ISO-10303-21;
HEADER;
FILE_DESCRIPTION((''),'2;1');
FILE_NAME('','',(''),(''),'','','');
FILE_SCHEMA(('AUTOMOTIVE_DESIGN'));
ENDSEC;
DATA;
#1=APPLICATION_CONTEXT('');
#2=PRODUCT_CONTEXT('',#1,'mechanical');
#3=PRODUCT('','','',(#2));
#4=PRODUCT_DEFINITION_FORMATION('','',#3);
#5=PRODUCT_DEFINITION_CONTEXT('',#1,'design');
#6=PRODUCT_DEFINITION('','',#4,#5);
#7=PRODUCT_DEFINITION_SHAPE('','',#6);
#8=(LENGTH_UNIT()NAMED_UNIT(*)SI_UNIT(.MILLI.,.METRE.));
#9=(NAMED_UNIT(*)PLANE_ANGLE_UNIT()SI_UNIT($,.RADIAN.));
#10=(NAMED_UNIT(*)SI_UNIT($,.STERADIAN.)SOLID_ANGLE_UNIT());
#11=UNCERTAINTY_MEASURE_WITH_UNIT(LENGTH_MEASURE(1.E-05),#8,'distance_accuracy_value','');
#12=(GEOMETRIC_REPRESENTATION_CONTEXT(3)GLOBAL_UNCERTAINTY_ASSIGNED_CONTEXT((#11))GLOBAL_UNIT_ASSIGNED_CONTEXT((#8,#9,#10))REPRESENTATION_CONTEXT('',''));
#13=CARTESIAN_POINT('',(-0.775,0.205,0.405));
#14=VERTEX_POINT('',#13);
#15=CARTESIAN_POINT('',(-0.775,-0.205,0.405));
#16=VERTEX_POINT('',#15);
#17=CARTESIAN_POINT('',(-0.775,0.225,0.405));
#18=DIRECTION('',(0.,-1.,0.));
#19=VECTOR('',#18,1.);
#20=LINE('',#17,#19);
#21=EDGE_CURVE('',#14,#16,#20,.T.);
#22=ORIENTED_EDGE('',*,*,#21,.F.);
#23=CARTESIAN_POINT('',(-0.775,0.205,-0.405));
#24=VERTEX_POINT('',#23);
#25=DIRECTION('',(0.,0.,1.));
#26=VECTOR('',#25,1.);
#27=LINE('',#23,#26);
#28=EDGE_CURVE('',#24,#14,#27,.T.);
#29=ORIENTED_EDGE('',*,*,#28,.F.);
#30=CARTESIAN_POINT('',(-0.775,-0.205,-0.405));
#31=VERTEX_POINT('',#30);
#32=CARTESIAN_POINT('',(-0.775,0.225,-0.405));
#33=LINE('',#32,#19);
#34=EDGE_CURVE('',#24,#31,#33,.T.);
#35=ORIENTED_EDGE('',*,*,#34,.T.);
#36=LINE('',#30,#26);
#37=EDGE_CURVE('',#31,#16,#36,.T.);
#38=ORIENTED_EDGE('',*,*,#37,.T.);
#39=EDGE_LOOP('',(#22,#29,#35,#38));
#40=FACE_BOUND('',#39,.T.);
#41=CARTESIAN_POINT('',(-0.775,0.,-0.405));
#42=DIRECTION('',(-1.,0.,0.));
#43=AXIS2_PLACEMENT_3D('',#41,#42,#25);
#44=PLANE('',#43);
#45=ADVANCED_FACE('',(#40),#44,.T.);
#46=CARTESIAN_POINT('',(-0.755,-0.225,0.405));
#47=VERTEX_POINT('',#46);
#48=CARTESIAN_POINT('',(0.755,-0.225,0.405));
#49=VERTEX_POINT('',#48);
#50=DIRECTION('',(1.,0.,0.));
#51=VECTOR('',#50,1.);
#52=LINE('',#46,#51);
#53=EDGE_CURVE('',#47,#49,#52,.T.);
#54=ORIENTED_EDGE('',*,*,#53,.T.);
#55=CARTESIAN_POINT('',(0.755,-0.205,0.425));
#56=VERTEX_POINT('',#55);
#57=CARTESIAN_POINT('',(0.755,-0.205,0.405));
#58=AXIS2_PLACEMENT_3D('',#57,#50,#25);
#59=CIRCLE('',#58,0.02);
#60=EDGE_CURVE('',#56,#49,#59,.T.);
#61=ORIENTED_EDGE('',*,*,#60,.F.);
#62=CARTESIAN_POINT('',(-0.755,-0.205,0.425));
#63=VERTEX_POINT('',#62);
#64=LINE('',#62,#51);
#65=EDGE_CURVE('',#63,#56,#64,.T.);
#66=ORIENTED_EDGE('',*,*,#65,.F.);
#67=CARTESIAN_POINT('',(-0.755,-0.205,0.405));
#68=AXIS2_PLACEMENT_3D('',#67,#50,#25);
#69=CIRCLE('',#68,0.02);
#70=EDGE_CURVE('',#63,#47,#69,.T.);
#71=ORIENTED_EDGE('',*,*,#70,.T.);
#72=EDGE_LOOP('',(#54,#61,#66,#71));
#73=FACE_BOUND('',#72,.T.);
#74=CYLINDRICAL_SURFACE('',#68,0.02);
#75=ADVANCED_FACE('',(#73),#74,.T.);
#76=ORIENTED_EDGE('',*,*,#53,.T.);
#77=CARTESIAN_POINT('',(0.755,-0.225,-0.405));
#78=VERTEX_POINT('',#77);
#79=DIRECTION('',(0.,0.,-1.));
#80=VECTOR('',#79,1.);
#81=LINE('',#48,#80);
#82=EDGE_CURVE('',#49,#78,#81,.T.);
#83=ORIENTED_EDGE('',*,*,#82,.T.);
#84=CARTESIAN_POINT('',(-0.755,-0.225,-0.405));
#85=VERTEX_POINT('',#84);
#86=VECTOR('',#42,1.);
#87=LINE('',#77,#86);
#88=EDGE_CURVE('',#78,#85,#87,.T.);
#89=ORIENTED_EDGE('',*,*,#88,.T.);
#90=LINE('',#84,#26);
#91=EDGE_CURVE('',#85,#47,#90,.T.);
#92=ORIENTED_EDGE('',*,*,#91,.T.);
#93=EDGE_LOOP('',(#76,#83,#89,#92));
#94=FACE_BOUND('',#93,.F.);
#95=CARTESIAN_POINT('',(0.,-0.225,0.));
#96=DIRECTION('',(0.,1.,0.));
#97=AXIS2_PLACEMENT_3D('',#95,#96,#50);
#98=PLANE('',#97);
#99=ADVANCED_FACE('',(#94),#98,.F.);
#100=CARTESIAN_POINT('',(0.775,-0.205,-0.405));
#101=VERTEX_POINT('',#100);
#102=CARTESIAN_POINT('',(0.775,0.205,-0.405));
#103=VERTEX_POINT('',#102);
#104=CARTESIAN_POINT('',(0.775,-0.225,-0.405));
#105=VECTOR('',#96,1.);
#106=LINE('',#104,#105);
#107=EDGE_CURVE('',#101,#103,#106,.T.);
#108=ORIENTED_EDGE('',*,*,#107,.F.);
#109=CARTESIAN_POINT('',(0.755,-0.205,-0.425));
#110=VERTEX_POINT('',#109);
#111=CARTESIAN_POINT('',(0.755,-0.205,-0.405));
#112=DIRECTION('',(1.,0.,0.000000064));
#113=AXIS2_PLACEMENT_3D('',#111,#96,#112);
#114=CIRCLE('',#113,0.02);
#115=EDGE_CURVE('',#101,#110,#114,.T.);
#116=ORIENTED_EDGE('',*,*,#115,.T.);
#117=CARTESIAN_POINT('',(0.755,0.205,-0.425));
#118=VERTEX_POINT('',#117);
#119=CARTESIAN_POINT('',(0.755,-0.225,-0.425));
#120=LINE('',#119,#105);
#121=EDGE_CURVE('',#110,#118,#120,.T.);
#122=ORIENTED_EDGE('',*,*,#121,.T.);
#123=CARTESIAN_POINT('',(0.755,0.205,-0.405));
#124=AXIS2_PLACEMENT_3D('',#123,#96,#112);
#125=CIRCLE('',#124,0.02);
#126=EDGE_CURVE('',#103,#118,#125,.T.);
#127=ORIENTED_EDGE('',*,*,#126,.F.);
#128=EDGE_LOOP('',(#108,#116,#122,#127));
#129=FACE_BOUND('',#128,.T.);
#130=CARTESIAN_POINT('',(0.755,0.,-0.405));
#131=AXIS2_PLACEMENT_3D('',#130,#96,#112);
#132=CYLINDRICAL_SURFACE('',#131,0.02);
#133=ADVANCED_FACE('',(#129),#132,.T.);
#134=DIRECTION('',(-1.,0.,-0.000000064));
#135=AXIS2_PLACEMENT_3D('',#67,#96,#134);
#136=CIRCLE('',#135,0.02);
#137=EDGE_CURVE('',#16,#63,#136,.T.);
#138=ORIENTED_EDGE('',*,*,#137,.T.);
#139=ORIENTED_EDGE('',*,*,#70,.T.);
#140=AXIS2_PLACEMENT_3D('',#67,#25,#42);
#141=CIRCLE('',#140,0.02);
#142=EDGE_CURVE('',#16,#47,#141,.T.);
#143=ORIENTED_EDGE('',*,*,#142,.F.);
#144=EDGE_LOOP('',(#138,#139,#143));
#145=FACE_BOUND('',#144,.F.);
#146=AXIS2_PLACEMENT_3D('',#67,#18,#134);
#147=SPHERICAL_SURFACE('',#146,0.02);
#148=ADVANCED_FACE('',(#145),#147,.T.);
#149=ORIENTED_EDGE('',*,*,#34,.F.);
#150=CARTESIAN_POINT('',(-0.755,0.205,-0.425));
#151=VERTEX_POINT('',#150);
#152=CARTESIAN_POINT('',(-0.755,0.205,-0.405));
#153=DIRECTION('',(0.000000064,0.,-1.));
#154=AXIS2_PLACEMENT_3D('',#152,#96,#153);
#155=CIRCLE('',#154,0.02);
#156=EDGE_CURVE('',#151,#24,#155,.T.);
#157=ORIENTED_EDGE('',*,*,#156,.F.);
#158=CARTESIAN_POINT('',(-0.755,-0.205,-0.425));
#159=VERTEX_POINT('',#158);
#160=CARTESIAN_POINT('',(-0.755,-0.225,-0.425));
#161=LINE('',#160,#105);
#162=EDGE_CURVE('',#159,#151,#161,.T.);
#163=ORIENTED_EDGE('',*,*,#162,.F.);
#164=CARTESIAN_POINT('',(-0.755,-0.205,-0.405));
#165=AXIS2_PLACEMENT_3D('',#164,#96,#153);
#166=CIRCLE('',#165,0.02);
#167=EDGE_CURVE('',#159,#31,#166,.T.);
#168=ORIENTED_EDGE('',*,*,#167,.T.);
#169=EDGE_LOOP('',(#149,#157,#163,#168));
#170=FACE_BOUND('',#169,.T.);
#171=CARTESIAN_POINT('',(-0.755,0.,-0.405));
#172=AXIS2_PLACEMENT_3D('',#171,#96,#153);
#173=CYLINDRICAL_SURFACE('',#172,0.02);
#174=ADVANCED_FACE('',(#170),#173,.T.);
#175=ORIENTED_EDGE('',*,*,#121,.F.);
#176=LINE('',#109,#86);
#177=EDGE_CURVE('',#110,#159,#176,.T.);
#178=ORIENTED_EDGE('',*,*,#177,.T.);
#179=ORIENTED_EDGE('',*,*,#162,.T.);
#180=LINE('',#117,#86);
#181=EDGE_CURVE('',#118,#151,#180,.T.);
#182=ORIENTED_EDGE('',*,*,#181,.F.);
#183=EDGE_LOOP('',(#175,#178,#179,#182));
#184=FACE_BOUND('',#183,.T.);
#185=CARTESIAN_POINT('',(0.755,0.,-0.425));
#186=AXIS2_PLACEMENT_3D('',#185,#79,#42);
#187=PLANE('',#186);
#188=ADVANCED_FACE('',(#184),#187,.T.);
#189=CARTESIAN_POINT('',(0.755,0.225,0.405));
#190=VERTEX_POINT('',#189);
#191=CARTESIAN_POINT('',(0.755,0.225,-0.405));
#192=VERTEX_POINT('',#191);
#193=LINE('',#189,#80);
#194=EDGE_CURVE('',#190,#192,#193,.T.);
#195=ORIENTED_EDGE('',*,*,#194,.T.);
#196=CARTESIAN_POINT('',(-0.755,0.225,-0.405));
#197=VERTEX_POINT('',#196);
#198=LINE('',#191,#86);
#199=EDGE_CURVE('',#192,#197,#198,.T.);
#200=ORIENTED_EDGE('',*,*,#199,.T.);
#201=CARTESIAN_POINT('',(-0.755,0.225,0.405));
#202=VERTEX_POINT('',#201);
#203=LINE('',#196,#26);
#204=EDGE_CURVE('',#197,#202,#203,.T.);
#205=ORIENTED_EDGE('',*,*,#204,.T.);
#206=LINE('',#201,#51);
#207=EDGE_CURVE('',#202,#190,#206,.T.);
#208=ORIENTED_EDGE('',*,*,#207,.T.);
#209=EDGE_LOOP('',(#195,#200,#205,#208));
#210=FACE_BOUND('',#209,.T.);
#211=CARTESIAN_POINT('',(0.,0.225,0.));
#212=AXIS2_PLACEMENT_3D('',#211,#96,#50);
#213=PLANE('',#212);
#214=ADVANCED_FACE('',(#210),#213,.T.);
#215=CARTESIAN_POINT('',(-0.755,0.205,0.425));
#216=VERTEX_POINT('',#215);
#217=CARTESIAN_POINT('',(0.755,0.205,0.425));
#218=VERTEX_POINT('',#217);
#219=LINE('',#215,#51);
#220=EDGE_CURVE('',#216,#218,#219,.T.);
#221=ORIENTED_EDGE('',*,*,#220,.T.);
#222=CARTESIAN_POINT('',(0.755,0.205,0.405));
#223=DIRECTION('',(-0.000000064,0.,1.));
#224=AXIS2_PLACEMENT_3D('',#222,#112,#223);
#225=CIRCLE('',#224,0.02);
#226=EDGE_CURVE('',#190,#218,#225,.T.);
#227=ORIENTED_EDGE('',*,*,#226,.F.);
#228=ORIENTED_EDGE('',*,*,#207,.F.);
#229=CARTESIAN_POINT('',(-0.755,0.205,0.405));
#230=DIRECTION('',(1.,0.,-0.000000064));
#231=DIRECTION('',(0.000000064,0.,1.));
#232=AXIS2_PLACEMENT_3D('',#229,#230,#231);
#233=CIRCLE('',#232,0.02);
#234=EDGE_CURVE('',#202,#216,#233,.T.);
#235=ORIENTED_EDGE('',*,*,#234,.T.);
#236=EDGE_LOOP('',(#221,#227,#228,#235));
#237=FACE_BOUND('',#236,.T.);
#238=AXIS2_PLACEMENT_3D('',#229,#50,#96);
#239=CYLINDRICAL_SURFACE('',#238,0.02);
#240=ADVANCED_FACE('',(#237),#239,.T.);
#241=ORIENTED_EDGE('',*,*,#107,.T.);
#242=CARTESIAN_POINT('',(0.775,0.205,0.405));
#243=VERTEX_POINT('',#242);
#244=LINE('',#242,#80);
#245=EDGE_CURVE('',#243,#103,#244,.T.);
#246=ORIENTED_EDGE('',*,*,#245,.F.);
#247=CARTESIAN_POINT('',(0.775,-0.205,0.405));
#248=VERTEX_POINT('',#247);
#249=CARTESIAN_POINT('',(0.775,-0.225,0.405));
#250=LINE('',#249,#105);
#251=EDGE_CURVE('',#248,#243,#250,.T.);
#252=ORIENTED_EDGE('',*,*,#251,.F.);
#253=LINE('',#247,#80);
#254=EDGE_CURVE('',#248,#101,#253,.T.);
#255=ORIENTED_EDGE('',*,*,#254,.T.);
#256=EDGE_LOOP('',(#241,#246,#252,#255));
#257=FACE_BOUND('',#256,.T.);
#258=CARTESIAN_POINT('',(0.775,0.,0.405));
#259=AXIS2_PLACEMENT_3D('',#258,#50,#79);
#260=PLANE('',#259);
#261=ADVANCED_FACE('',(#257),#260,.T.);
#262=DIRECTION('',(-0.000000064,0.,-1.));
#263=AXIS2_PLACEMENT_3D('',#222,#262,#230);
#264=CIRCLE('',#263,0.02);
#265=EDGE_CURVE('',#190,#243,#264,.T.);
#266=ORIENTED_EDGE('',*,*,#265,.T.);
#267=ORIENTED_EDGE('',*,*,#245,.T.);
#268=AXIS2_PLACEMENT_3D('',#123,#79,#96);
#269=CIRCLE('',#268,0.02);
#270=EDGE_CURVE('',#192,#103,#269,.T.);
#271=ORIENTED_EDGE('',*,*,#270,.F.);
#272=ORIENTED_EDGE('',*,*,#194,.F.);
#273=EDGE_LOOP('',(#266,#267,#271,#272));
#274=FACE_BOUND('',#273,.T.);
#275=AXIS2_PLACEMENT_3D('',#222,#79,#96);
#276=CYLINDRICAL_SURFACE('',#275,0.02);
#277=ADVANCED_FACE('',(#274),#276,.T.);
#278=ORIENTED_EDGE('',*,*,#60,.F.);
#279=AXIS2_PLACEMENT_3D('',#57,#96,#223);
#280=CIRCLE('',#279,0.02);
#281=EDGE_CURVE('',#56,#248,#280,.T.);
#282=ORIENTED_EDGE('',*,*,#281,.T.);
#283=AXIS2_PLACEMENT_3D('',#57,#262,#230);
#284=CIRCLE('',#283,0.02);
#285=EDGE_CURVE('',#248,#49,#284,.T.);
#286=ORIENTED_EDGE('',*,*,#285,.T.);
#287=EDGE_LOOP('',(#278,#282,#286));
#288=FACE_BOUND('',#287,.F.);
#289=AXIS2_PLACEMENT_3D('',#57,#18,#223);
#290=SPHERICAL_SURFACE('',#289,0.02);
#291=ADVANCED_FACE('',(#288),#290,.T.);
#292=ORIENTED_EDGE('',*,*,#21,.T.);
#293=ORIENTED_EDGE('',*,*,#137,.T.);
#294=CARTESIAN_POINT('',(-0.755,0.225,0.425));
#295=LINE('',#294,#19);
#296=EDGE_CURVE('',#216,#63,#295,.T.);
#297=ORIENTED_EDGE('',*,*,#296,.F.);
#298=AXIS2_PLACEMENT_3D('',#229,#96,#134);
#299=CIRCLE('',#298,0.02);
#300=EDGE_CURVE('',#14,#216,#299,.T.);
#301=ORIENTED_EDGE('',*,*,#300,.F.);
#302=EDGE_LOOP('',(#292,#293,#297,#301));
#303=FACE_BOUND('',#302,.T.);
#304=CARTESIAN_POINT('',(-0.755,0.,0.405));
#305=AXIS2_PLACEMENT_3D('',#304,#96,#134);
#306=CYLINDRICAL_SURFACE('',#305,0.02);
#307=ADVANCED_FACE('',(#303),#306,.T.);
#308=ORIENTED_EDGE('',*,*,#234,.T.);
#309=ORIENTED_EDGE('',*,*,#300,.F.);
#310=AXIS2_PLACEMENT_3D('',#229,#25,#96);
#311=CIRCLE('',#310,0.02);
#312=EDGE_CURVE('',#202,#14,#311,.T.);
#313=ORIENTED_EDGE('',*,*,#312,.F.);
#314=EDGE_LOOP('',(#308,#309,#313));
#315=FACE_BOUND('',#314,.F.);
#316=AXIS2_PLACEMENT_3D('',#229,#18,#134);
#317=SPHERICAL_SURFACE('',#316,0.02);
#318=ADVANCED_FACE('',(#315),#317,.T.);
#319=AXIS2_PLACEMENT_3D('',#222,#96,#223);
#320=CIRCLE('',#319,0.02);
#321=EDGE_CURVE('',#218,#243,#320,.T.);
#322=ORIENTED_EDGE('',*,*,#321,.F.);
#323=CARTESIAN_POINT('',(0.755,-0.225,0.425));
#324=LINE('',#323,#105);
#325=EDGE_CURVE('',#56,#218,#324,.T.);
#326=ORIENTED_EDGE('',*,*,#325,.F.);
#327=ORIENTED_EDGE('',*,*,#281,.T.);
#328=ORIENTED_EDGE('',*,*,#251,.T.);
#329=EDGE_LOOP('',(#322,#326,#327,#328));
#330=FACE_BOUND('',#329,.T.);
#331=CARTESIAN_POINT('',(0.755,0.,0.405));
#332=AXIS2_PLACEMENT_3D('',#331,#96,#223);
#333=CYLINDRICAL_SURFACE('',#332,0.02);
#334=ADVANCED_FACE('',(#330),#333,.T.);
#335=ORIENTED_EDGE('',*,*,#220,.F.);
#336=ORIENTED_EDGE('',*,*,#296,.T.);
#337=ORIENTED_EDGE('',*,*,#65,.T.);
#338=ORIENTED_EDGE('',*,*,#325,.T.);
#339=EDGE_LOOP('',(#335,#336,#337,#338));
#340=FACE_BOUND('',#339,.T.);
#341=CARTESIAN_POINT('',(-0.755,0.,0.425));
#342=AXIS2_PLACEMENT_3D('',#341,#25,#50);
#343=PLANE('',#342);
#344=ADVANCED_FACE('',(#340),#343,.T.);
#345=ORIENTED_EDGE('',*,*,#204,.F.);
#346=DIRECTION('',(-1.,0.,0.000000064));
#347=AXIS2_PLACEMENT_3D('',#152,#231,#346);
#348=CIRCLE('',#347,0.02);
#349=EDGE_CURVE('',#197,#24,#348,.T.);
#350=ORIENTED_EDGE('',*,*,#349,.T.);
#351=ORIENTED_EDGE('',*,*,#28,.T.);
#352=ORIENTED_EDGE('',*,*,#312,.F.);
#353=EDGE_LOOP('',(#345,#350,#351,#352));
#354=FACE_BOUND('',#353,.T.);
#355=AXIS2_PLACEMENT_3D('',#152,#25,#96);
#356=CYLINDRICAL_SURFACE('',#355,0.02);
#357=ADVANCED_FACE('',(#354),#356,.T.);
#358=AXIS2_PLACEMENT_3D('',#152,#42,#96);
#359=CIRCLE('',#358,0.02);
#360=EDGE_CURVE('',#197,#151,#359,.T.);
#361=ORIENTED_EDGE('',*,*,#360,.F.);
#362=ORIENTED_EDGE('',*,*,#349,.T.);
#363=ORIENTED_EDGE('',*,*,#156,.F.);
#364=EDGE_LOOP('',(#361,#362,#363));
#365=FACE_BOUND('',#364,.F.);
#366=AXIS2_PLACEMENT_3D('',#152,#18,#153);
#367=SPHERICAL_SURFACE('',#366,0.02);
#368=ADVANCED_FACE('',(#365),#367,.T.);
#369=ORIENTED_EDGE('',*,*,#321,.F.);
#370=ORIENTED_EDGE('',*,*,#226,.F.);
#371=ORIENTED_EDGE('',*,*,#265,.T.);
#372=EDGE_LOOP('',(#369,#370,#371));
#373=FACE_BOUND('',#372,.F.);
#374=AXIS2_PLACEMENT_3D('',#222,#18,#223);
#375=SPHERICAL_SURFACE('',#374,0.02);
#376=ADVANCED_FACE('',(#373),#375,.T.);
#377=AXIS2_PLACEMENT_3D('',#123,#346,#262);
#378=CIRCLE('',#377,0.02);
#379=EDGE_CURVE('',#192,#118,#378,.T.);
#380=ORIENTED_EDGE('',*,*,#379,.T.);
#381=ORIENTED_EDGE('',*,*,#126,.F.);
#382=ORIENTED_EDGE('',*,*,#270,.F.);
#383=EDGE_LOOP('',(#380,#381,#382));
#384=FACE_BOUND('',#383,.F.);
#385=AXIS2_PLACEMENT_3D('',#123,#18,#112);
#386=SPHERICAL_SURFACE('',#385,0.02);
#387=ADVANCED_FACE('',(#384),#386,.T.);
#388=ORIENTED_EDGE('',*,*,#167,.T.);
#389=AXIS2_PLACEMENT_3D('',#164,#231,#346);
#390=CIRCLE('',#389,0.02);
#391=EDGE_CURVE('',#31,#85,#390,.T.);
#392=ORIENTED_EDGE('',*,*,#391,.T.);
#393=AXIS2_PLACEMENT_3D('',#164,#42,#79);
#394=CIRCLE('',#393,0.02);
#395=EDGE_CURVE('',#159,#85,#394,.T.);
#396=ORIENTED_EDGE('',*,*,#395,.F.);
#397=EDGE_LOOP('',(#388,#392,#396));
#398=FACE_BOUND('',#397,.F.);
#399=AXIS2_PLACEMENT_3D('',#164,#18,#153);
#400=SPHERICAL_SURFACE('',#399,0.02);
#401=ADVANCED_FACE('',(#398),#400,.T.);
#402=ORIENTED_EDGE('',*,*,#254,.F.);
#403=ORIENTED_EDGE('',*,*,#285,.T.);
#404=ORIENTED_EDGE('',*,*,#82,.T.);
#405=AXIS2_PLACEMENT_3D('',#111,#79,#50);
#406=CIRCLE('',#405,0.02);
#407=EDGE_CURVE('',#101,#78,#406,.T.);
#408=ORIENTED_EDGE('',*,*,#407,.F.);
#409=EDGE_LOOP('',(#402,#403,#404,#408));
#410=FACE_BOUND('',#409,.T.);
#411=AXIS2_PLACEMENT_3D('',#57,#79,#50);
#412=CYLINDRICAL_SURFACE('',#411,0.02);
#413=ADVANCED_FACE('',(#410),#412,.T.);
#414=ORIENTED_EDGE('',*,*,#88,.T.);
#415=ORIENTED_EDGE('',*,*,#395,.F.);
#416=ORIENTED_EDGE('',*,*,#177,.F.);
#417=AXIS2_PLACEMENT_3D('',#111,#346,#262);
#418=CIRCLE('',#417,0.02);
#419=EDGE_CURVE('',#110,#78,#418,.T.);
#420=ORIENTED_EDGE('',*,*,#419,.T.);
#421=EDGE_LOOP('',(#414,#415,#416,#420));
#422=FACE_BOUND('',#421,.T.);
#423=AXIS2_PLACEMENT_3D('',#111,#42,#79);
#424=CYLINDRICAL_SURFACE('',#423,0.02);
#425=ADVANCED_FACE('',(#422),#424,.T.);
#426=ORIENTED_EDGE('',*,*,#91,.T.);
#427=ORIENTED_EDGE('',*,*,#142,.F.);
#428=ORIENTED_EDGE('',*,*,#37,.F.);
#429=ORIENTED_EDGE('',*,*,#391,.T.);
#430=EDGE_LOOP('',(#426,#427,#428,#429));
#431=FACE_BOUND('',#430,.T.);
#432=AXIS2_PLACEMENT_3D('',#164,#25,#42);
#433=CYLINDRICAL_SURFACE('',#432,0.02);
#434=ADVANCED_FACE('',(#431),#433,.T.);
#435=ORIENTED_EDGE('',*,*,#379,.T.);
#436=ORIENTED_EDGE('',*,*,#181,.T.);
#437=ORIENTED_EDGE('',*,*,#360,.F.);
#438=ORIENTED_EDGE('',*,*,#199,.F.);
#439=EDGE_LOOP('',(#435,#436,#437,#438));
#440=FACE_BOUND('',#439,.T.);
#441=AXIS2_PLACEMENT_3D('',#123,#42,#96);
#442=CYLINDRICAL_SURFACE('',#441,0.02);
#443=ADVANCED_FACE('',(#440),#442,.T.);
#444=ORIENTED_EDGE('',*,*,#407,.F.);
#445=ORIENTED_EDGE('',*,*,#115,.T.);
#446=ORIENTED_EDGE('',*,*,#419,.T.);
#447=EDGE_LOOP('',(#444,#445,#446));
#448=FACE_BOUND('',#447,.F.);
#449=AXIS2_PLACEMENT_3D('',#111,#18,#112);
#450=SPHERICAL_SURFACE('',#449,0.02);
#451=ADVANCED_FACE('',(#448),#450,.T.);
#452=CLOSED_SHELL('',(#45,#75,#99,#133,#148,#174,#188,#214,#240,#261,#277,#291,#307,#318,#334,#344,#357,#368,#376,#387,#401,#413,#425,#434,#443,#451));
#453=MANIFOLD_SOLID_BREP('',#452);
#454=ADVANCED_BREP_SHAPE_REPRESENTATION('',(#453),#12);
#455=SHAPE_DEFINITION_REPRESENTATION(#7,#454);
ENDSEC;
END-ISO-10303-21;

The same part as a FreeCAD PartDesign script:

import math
import FreeCAD as App
import Part
import Sketcher
Q = App.Units.Quantity

doc = App.newDocument("Part")
body = doc.addObject("PartDesign::Body", "Body")

# Sketch on XZ plane
sketch1 = body.newObject("Sketcher::SketchObject", "Sketch")
sketch1.AttachmentSupport = (doc.getObject("XZ_Plane"), [""])
sketch1.MapMode = "FlatFace"
sketch1.addGeometry(Part.LineSegment(App.Vector(-0.755, 0.425, 0), App.Vector(0.755, 0.425, 0)), False)
sketch1.addGeometry(Part.ArcOfCircle(Part.Circle(App.Vector(0.755, 0.405, 0), App.Vector(0, 0, 1), 0.02), math.radians(0), math.radians(90)), False)
sketch1.addGeometry(Part.LineSegment(App.Vector(0.775, 0.405, 0), App.Vector(0.775, -0.405, 0)), False)
sketch1.addGeometry(Part.ArcOfCircle(Part.Circle(App.Vector(0.755, -0.405, 0), App.Vector(0, 0, 1), 0.02), math.radians(-90), math.radians(0)), False)
sketch1.addGeometry(Part.LineSegment(App.Vector(0.755, -0.425, 0), App.Vector(-0.755, -0.425, 0)), False)
sketch1.addGeometry(Part.ArcOfCircle(Part.Circle(App.Vector(-0.755, -0.405, 0), App.Vector(0, 0, 1), 0.02), math.radians(180), math.radians(270)), False)
sketch1.addGeometry(Part.LineSegment(App.Vector(-0.775, -0.405, 0), App.Vector(-0.775, 0.405, 0)), False)
sketch1.addGeometry(Part.ArcOfCircle(Part.Circle(App.Vector(-0.755, 0.405, 0), App.Vector(0, 0, 1), 0.02), math.radians(90), math.radians(180)), False)
sketch1.addConstraint(Sketcher.Constraint("Tangent", 0, 2, 1, 2))
sketch1.addConstraint(Sketcher.Constraint("Tangent", 1, 1, 2, 1))
sketch1.addConstraint(Sketcher.Constraint("Tangent", 2, 2, 3, 2))
sketch1.addConstraint(Sketcher.Constraint("Tangent", 3, 1, 4, 1))
sketch1.addConstraint(Sketcher.Constraint("Tangent", 4, 2, 5, 2))
sketch1.addConstraint(Sketcher.Constraint("Tangent", 5, 1, 6, 1))
sketch1.addConstraint(Sketcher.Constraint("Tangent", 6, 2, 7, 2))
sketch1.addConstraint(Sketcher.Constraint("Tangent", 7, 1, 0, 1))
sketch1.addConstraint(Sketcher.Constraint("Horizontal", 0))
sketch1.addConstraint(Sketcher.Constraint("Vertical", 2))
sketch1.addConstraint(Sketcher.Constraint("Horizontal", 4))
sketch1.addConstraint(Sketcher.Constraint("Vertical", 6))
sketch1.addConstraint(Sketcher.Constraint("Equal", 1, 3))
sketch1.addConstraint(Sketcher.Constraint("Equal", 3, 5))
sketch1.addConstraint(Sketcher.Constraint("Equal", 5, 7))
sketch1.addConstraint(Sketcher.Constraint("Symmetric", 1, 3, 5, 3, -1, 1))
sketch1.addConstraint(Sketcher.Constraint("Radius", 1, Q("0.02 mm")))
sketch1.addConstraint(Sketcher.Constraint("DistanceX", 0, 1, 0, 2, Q("1.51 mm")))
sketch1.addConstraint(Sketcher.Constraint("DistanceY", 2, 2, 2, 1, Q("0.81 mm")))
pad1 = body.newObject("PartDesign::Pad", "Pad")
pad1.Profile = sketch1
pad1.Length = 0.45
pad1.Midplane = True
doc.recompute()

fillet = body.newObject("PartDesign::Fillet", "Fillet")
fillet.Base = (pad1, ["Edge1"])
fillet.UseAllEdges = True
fillet.Radius = 0.02

doc.recompute()
